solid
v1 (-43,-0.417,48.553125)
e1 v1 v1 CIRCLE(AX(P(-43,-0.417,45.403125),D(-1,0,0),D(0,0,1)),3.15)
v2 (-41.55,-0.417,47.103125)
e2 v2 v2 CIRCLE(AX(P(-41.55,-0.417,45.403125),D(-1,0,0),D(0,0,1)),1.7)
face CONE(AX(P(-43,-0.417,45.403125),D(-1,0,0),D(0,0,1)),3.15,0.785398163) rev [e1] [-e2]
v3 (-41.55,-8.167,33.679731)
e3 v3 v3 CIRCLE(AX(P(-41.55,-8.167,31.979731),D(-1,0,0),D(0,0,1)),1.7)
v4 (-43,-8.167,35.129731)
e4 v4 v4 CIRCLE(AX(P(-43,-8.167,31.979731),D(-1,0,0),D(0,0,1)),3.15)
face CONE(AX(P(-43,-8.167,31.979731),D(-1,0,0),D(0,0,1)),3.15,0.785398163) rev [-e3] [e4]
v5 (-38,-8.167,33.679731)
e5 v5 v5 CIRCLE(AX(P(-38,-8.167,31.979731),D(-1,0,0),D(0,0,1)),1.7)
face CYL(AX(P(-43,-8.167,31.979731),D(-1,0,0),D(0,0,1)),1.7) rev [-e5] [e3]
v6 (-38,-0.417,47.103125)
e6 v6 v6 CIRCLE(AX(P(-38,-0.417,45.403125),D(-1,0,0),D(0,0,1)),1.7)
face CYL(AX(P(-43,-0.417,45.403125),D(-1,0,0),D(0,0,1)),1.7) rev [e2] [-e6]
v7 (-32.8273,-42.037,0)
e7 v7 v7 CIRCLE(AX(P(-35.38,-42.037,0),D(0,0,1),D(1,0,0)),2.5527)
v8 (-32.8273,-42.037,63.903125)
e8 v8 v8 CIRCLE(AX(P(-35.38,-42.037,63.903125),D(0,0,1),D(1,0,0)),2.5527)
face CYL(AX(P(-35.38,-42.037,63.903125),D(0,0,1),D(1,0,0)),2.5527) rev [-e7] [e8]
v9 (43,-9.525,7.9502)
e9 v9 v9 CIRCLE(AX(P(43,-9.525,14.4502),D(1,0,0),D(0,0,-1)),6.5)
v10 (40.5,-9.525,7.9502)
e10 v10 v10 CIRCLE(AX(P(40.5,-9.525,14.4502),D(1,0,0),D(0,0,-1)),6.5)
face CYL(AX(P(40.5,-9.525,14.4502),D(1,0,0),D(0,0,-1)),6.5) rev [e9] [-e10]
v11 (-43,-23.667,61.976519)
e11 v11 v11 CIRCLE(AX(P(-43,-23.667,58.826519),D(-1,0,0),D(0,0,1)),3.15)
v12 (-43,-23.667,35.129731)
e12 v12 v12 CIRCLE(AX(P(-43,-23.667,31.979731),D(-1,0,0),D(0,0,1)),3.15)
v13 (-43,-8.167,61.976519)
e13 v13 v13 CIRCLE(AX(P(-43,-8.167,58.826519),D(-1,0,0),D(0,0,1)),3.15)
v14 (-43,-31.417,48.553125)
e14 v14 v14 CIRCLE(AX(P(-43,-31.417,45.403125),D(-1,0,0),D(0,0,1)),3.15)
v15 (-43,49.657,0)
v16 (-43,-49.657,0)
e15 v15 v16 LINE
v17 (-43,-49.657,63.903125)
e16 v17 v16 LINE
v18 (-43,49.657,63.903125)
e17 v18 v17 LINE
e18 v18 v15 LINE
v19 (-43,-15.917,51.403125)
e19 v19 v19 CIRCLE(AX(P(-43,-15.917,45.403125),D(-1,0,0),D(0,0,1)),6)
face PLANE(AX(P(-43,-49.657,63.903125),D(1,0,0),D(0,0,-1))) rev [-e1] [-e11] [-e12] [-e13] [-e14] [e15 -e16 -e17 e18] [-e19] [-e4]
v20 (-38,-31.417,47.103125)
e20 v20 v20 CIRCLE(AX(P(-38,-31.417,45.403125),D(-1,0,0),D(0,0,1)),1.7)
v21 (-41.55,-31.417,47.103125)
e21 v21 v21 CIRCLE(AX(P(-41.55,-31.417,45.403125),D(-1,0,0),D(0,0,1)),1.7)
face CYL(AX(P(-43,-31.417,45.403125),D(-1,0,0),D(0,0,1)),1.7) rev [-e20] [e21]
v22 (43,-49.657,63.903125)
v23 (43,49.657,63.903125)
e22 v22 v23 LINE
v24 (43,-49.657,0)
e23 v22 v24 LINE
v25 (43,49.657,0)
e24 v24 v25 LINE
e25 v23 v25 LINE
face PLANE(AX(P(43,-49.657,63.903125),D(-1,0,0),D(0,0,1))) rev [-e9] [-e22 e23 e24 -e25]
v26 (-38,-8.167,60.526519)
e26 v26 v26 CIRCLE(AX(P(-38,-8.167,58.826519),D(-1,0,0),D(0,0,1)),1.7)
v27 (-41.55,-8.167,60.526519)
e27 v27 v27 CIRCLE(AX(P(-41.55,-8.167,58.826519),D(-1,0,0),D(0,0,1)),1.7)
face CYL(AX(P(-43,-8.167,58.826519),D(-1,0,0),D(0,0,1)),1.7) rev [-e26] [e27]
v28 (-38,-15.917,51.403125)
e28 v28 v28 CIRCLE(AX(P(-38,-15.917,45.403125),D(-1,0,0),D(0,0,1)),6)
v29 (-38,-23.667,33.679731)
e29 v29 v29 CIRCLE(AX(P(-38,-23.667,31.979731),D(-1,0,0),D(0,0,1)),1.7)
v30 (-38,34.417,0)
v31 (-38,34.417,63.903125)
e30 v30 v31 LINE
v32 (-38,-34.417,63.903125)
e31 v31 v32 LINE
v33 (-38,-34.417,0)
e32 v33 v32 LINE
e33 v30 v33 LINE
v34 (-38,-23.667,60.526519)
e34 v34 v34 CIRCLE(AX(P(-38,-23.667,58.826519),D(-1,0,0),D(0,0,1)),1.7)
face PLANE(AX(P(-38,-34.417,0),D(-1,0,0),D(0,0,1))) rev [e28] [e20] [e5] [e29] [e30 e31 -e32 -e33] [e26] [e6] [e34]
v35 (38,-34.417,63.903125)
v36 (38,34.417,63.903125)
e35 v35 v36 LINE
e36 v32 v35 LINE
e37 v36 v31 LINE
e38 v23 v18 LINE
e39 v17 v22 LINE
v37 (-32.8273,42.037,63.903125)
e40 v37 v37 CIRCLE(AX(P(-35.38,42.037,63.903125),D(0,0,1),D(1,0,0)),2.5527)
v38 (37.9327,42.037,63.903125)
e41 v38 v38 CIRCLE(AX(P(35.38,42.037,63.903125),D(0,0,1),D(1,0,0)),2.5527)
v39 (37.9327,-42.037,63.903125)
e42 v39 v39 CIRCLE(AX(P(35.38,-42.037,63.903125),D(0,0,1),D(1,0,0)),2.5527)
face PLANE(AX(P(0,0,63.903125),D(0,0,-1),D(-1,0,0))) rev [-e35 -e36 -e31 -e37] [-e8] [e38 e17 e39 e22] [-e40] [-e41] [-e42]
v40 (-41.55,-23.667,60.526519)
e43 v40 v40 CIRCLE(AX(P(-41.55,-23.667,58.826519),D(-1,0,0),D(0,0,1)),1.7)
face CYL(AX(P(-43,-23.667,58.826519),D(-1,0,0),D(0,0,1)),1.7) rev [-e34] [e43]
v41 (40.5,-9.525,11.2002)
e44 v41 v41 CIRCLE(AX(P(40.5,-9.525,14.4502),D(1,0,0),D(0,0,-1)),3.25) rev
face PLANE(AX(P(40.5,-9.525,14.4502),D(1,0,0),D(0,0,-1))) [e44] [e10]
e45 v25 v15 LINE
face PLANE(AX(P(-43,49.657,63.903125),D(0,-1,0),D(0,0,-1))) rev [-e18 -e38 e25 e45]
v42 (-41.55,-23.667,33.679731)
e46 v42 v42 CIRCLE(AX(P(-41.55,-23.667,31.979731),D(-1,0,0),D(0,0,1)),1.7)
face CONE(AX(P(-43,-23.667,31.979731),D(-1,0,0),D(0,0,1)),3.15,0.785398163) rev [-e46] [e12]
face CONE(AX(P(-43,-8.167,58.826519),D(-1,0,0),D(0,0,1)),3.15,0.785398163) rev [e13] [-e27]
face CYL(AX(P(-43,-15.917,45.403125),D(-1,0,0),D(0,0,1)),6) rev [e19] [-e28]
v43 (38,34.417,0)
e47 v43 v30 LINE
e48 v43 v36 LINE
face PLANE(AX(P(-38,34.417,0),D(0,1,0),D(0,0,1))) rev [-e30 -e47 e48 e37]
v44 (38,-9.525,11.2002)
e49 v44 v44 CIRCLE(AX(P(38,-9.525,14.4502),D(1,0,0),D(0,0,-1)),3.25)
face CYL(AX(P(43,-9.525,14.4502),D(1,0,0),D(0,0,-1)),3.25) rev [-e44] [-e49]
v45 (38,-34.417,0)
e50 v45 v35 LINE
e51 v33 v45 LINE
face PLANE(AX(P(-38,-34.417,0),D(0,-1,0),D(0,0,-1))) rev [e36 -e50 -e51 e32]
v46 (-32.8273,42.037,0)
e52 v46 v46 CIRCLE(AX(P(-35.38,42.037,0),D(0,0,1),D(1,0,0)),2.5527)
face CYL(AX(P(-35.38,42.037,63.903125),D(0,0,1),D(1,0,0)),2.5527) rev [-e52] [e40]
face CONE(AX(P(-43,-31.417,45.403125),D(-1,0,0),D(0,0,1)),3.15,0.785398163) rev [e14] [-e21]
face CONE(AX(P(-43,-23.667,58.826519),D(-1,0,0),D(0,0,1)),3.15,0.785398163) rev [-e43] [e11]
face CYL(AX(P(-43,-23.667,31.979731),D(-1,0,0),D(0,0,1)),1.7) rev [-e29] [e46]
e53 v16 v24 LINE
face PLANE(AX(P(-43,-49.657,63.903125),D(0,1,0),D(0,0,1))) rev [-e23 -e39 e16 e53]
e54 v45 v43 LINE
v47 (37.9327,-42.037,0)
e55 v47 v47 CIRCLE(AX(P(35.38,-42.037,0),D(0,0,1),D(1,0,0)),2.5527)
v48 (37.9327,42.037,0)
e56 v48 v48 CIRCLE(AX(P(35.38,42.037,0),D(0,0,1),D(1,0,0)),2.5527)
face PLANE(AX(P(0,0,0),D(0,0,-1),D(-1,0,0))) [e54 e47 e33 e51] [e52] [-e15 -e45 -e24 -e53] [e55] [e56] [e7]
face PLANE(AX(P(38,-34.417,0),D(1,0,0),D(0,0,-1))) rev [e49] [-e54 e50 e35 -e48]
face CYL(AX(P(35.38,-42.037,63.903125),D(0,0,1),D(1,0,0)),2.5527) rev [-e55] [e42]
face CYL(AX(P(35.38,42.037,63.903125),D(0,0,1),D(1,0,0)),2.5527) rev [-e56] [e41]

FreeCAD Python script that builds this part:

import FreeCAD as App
import Part
import Sketcher
from FreeCAD import Vector


def add_polygon(sketch, points):
    """Adds a closed chain of lines whose ends are joined by coincident constraints."""
    first, n = sketch.GeometryCount, len(points)
    for a, b in zip(points, points[1:] + points[:1]):
        sketch.addGeometry(Part.LineSegment(App.Vector(*a, 0), App.Vector(*b, 0)), False)
    for i in range(n):
        sketch.addConstraint(Sketcher.Constraint("Coincident", first + i, 2, first + (i + 1) % n, 1))

doc = App.newDocument("Part")
body = doc.addObject("PartDesign::Body", "Body")

sketch1 = doc.addObject("Sketcher::SketchObject", "Sketch")
body.addObject(sketch1)
sketch1.AttachmentSupport = (doc.XY_Plane, [""])
sketch1.MapMode = "FlatFace"
add_polygon(sketch1, [(-43, 50), (-43, -50), (43, -50), (43, 50)])
sketch1.addConstraint([
    Sketcher.Constraint("Vertical", 0),
    Sketcher.Constraint("Horizontal", 1),
    Sketcher.Constraint("Vertical", 2),
    Sketcher.Constraint("Horizontal", 3),
    Sketcher.Constraint("Symmetric", 0, 2, 2, 2, -1, 1),
    Sketcher.Constraint("DistanceX", 1, 1, 1, 2, 86.0),
    Sketcher.Constraint("DistanceY", 0, 2, 0, 1, 99.314),
])
pad1 = doc.addObject("PartDesign::Pad", "Pad")
body.addObject(pad1)
pad1.Profile = sketch1
pad1.Length = 63.903125

sketch2 = doc.addObject("Sketcher::SketchObject", "Sketch001")
body.addObject(sketch2)
sketch2.AttachmentSupport = (doc.XY_Plane, [""])
sketch2.MapMode = "FlatFace"
sketch2.AttachmentOffset = App.Placement(Vector(0, 0, 63.903125), App.Rotation())
add_polygon(sketch2, [(-38, 34), (-38, -34), (38, -34), (38, 34)])
sketch2.addConstraint([
    Sketcher.Constraint("Vertical", 0),
    Sketcher.Constraint("Horizontal", 1),
    Sketcher.Constraint("Vertical", 2),
    Sketcher.Constraint("Horizontal", 3),
    Sketcher.Constraint("Symmetric", 0, 2, 2, 2, -1, 1),
    Sketcher.Constraint("DistanceX", 1, 1, 1, 2, 76.0),
    Sketcher.Constraint("DistanceY", 0, 2, 0, 1, 68.834),
])
pocket1 = doc.addObject("PartDesign::Pocket", "Pocket")
body.addObject(pocket1)
pocket1.Profile = sketch2
pocket1.Type = "ThroughAll"

sketch3 = doc.addObject("Sketcher::SketchObject", "Sketch002")
body.addObject(sketch3)
sketch3.AttachmentSupport = (doc.YZ_Plane, [""])
sketch3.MapMode = "FlatFace"
sketch3.AttachmentOffset = App.Placement(Vector(0, 0, 43), App.Rotation())
sketch3.addGeometry(Part.Circle(Vector(-9.5, 14.5, 0), Vector(0, 0, 1), 3.2), False)
sketch3.addConstraint([
    Sketcher.Constraint("Diameter", 0, 6.5),
    Sketcher.Constraint("DistanceX", 0, 3, -1, 1, 9.525),
    Sketcher.Constraint("DistanceY", -1, 1, 0, 3, 14.4502),
])
doc.recompute()
hole = doc.addObject("PartDesign::Hole", "Hole")
body.addObject(hole)
hole.Profile = sketch3
hole.ThreadType = "None"
hole.Diameter = 6.5
hole.DepthType = "Dimension"
hole.Depth = 5
hole.DrillPoint = "Flat"

sketch4 = doc.addObject("Sketcher::SketchObject", "Sketch003")
body.addObject(sketch4)
sketch4.AttachmentSupport = (doc.YZ_Plane, [""])
sketch4.MapMode = "FlatFace"
sketch4.AttachmentOffset = App.Placement(Vector(0, 0, -43), App.Rotation())
sketch4.addGeometry(Part.Circle(Vector(-16, 45, 0), Vector(0, 0, 1), 6), False)
sketch4.addConstraint([
    Sketcher.Constraint("Diameter", 0, 12.0),
    Sketcher.Constraint("DistanceX", 0, 3, -1, 1, 15.917),
    Sketcher.Constraint("DistanceY", -1, 1, 0, 3, 45.403125),
])
doc.recompute()
hole2 = doc.addObject("PartDesign::Hole", "Hole001")
body.addObject(hole2)
hole2.Profile = sketch4
hole2.ThreadType = "None"
hole2.Diameter = 12
hole2.DepthType = "Dimension"
hole2.Depth = 5
hole2.DrillPoint = "Flat"
hole2.Reversed = True

sketch5 = doc.addObject("Sketcher::SketchObject", "Sketch004")
body.addObject(sketch5)
sketch5.AttachmentSupport = (doc.YZ_Plane, [""])
sketch5.MapMode = "FlatFace"
sketch5.AttachmentOffset = App.Placement(Vector(0, 0, -43), App.Rotation())
sketch5.addGeometry([
    Part.Circle(Vector(-0.4, 45.4, 0), Vector(0, 0, 1), 1.7),
    Part.Circle(Vector(-8.2, 58.8, 0), Vector(0, 0, 1), 1.7),
    Part.Circle(Vector(-23.7, 58.8, 0), Vector(0, 0, 1), 1.7),
    Part.Circle(Vector(-31.4, 45.4, 0), Vector(0, 0, 1), 1.7),
    Part.Circle(Vector(-23.7, 32, 0), Vector(0, 0, 1), 1.7),
    Part.Circle(Vector(-8.2, 32, 0), Vector(0, 0, 1), 1.7),
], False)
sketch5.addConstraint([
    Sketcher.Constraint("Equal", 0, 1),
    Sketcher.Constraint("Equal", 1, 2),
    Sketcher.Constraint("Equal", 2, 3),
    Sketcher.Constraint("Equal", 3, 4),
    Sketcher.Constraint("Equal", 4, 5),
    Sketcher.Constraint("Horizontal", 1, 3, 2, 3),
    Sketcher.Constraint("Horizontal", 0, 3, 3, 3),
    Sketcher.Constraint("Horizontal", 4, 3, 5, 3),
    Sketcher.Constraint("Vertical", 2, 3, 4, 3),
    Sketcher.Constraint("Vertical", 1, 3, 5, 3),
    Sketcher.Constraint("Diameter", 0, 3.4),
    Sketcher.Constraint("DistanceX", 3, 3, 0, 3, 31.0),
    Sketcher.Constraint("DistanceX", 2, 3, 1, 3, 15.5),
    Sketcher.Constraint("DistanceX", 1, 3, 0, 3, 7.75),
    Sketcher.Constraint("DistanceX", 0, 3, -1, 1, 0.417),
    Sketcher.Constraint("DistanceY", -1, 1, 1, 3, 58.826519),
    Sketcher.Constraint("DistanceY", -1, 1, 4, 3, 31.979731),
    Sketcher.Constraint("DistanceY", -1, 1, 0, 3, 45.403125),
])
doc.recompute()
hole3 = doc.addObject("PartDesign::Hole", "Hole002")
body.addObject(hole3)
hole3.Profile = sketch5
hole3.ThreadType = "None"
hole3.Diameter = 3.4
hole3.DepthType = "Dimension"
hole3.Depth = 5
hole3.DrillPoint = "Flat"
hole3.HoleCutType = "Countersink"
hole3.HoleCutDiameter = 6.3
hole3.HoleCutCountersinkAngle = 90
hole3.Reversed = True

sketch6 = doc.addObject("Sketcher::SketchObject", "Sketch005")
body.addObject(sketch6)
sketch6.AttachmentSupport = (doc.XY_Plane, [""])
sketch6.MapMode = "FlatFace"
sketch6.AttachmentOffset = App.Placement(Vector(0, 0, 63.903125), App.Rotation())
sketch6.addGeometry([
    Part.Circle(Vector(-35.4, 42, 0), Vector(0, 0, 1), 2.6),
    Part.Circle(Vector(35.4, 42, 0), Vector(0, 0, 1), 2.6),
    Part.Circle(Vector(-35.4, -42, 0), Vector(0, 0, 1), 2.6),
    Part.Circle(Vector(35.4, -42, 0), Vector(0, 0, 1), 2.6),
], False)
sketch6.addConstraint([
    Sketcher.Constraint("Equal", 0, 1),
    Sketcher.Constraint("Equal", 1, 2),
    Sketcher.Constraint("Equal", 2, 3),
    Sketcher.Constraint("Symmetric", 1, 3, 2, 3, -1, 1),
    Sketcher.Constraint("Symmetric", 0, 3, 3, 3, -1, 1),
    Sketcher.Constraint("Symmetric", 0, 3, 1, 3, -2),
    Sketcher.Constraint("Diameter", 0, 5.1054),
    Sketcher.Constraint("DistanceX", 0, 3, -1, 1, 35.38),
    Sketcher.Constraint("DistanceY", -1, 1, 0, 3, 42.037),
])
doc.recompute()
hole4 = doc.addObject("PartDesign::Hole", "Hole003")
body.addObject(hole4)
hole4.Profile = sketch6
hole4.ThreadType = "None"
hole4.Diameter = 5.1054
hole4.DepthType = "ThroughAll"

sketch7 = doc.addObject("Sketcher::SketchObject", "Sketch006")
body.addObject(sketch7)
sketch7.AttachmentSupport = (doc.YZ_Plane, [""])
sketch7.MapMode = "FlatFace"
sketch7.AttachmentOffset = App.Placement(Vector(0, 0, 43), App.Rotation())
sketch7.addGeometry(Part.Circle(Vector(-10, 14, 0), Vector(0, 0, 1), 6), False)
sketch7.addConstraint([
    Sketcher.Constraint("Diameter", 0, 13.0),
    Sketcher.Constraint("DistanceX", 0, 3, -1, 1, 9.525),
    Sketcher.Constraint("DistanceY", -1, 1, 0, 3, 14.4502),
])
pocket2 = doc.addObject("PartDesign::Pocket", "Pocket001")
body.addObject(pocket2)
pocket2.Profile = sketch7
pocket2.Length = 2.5

doc.recompute()
